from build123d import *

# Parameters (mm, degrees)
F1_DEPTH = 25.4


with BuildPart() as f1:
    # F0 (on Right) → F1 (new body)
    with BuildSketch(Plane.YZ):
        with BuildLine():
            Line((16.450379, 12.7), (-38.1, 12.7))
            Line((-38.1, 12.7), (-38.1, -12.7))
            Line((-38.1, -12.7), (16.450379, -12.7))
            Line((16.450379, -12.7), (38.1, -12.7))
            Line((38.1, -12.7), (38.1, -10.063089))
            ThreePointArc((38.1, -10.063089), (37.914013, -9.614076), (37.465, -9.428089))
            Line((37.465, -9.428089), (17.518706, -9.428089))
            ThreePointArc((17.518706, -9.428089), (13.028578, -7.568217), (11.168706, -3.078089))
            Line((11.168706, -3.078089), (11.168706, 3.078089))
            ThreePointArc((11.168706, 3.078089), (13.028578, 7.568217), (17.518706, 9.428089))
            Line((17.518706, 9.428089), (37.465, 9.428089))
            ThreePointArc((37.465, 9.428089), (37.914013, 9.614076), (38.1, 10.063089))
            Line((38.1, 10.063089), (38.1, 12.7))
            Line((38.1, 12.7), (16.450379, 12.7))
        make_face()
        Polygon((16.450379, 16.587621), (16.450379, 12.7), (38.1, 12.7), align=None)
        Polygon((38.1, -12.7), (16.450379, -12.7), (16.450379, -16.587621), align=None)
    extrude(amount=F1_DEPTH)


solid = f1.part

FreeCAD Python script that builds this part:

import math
import FreeCAD as App
import Part
import Sketcher
from FreeCAD import Vector
Q = App.Units.Quantity

doc = App.newDocument("Part")
body = doc.addObject("PartDesign::Body", "Body")

# Sketch on YZ plane
sketch1 = body.newObject("Sketcher::SketchObject", "Sketch")
sketch1.AttachmentSupport = (doc.getObject("YZ_Plane"), [""])
sketch1.MapMode = "FlatFace"
sketch1.addGeometry([
    Part.LineSegment(Vector(-38.1, 12.7, 0), Vector(-38.1, -12.7, 0)),  # 0
    Part.LineSegment(Vector(-38.1, -12.7, 0), Vector(16.5, -12.7, 0)),  # 1
    Part.LineSegment(Vector(16.5, -12.7, 0), Vector(16.5, -16.6, 0)),  # 2
    Part.LineSegment(Vector(16.5, -16.6, 0), Vector(38.1, -12.7, 0)),  # 3
    Part.LineSegment(Vector(38.1, -12.7, 0), Vector(38.1, -10.1, 0)),  # 4
    Part.ArcOfCircle(Part.Circle(Vector(37.5, -10.1, 0), Vector(0, 0, 1), 0.6), math.radians(0), math.radians(90)),  # 5
    Part.LineSegment(Vector(37.5, -9.4, 0), Vector(17.5, -9.4, 0)),  # 6
    Part.ArcOfCircle(Part.Circle(Vector(17.5, -3.1, 0), Vector(0, 0, 1), 6.4), math.radians(-180), math.radians(-90)),  # 7
    Part.LineSegment(Vector(11.2, -3.1, 0), Vector(11.2, 3.1, 0)),  # 8
    Part.ArcOfCircle(Part.Circle(Vector(17.5, 3.1, 0), Vector(0, 0, 1), 6.4), math.radians(90), math.radians(180)),  # 9
    Part.LineSegment(Vector(17.5, 9.4, 0), Vector(37.5, 9.4, 0)),  # 10
    Part.ArcOfCircle(Part.Circle(Vector(37.5, 10.1, 0), Vector(0, 0, 1), 0.6), math.radians(-90), math.radians(0)),  # 11
    Part.LineSegment(Vector(38.1, 10.1, 0), Vector(38.1, 12.7, 0)),  # 12
    Part.LineSegment(Vector(38.1, 12.7, 0), Vector(16.5, 16.6, 0)),  # 13
    Part.LineSegment(Vector(16.5, 16.6, 0), Vector(16.5, 12.7, 0)),  # 14
    Part.LineSegment(Vector(16.5, 12.7, 0), Vector(-38.1, 12.7, 0)),  # 15
], False)
sketch1.addConstraint([
    Sketcher.Constraint("Coincident", 0, 2, 1, 1),
    Sketcher.Constraint("Coincident", 1, 2, 2, 1),
    Sketcher.Constraint("Coincident", 2, 2, 3, 1),
    Sketcher.Constraint("Coincident", 3, 2, 4, 1),
    Sketcher.Constraint("Tangent", 4, 2, 5, 1),
    Sketcher.Constraint("Tangent", 5, 2, 6, 1),
    Sketcher.Constraint("Tangent", 6, 2, 7, 2),
    Sketcher.Constraint("Tangent", 7, 1, 8, 1),
    Sketcher.Constraint("Tangent", 8, 2, 9, 2),
    Sketcher.Constraint("Tangent", 9, 1, 10, 1),
    Sketcher.Constraint("Tangent", 10, 2, 11, 1),
    Sketcher.Constraint("Tangent", 11, 2, 12, 1),
    Sketcher.Constraint("Coincident", 12, 2, 13, 1),
    Sketcher.Constraint("Coincident", 13, 2, 14, 1),
    Sketcher.Constraint("Coincident", 14, 2, 15, 1),
    Sketcher.Constraint("Coincident", 15, 2, 0, 1),
    Sketcher.Constraint("Vertical", 0),
    Sketcher.Constraint("Horizontal", 1),
    Sketcher.Constraint("Vertical", 2),
    Sketcher.Constraint("Vertical", 4),
    Sketcher.Constraint("Horizontal", 6),
    Sketcher.Constraint("Vertical", 8),
    Sketcher.Constraint("Horizontal", 10),
    Sketcher.Constraint("Vertical", 12),
    Sketcher.Constraint("Vertical", 14),
    Sketcher.Constraint("Horizontal", 15),
    Sketcher.Constraint("Equal", 7, 9),
    Sketcher.Constraint("Equal", 5, 11),
    Sketcher.Constraint("Symmetric", 0, 2, 12, 2, -1, 1),
    Sketcher.Constraint("Symmetric", 3, 2, 15, 2, -1, 1),
    Sketcher.Constraint("Symmetric", 2, 2, 13, 2, -1),
    Sketcher.Constraint("Horizontal", 1, 2, 3, 2),
    Sketcher.Constraint("Equal", 4, 12),
    Sketcher.Constraint("DistanceY", 0, 2, 0, 1, Q("1 in")),
    Sketcher.Constraint("Radius", 7, Q("0.25 in")),
    Sketcher.Constraint("Radius", 5, Q("0.025 in")),
    Sketcher.Constraint("DistanceX", 0, 2, -1, 1, Q("1.5 in")),
    Sketcher.Constraint("Distance", 3, Q("21.995902 mm")),
    Sketcher.Constraint("DistanceX", 1, 1, 1, 2, Q("54.550379 mm")),
    Sketcher.Constraint("DistanceY", 4, 1, 4, 2, Q("2.636911 mm")),
    Sketcher.Constraint("DistanceX", 6, 2, 6, 1, Q("19.946294 mm")),
])
pad1 = body.newObject("PartDesign::Pad", "Pad")
pad1.Profile = sketch1
pad1.Length = Q("1 in")

doc.recompute()
